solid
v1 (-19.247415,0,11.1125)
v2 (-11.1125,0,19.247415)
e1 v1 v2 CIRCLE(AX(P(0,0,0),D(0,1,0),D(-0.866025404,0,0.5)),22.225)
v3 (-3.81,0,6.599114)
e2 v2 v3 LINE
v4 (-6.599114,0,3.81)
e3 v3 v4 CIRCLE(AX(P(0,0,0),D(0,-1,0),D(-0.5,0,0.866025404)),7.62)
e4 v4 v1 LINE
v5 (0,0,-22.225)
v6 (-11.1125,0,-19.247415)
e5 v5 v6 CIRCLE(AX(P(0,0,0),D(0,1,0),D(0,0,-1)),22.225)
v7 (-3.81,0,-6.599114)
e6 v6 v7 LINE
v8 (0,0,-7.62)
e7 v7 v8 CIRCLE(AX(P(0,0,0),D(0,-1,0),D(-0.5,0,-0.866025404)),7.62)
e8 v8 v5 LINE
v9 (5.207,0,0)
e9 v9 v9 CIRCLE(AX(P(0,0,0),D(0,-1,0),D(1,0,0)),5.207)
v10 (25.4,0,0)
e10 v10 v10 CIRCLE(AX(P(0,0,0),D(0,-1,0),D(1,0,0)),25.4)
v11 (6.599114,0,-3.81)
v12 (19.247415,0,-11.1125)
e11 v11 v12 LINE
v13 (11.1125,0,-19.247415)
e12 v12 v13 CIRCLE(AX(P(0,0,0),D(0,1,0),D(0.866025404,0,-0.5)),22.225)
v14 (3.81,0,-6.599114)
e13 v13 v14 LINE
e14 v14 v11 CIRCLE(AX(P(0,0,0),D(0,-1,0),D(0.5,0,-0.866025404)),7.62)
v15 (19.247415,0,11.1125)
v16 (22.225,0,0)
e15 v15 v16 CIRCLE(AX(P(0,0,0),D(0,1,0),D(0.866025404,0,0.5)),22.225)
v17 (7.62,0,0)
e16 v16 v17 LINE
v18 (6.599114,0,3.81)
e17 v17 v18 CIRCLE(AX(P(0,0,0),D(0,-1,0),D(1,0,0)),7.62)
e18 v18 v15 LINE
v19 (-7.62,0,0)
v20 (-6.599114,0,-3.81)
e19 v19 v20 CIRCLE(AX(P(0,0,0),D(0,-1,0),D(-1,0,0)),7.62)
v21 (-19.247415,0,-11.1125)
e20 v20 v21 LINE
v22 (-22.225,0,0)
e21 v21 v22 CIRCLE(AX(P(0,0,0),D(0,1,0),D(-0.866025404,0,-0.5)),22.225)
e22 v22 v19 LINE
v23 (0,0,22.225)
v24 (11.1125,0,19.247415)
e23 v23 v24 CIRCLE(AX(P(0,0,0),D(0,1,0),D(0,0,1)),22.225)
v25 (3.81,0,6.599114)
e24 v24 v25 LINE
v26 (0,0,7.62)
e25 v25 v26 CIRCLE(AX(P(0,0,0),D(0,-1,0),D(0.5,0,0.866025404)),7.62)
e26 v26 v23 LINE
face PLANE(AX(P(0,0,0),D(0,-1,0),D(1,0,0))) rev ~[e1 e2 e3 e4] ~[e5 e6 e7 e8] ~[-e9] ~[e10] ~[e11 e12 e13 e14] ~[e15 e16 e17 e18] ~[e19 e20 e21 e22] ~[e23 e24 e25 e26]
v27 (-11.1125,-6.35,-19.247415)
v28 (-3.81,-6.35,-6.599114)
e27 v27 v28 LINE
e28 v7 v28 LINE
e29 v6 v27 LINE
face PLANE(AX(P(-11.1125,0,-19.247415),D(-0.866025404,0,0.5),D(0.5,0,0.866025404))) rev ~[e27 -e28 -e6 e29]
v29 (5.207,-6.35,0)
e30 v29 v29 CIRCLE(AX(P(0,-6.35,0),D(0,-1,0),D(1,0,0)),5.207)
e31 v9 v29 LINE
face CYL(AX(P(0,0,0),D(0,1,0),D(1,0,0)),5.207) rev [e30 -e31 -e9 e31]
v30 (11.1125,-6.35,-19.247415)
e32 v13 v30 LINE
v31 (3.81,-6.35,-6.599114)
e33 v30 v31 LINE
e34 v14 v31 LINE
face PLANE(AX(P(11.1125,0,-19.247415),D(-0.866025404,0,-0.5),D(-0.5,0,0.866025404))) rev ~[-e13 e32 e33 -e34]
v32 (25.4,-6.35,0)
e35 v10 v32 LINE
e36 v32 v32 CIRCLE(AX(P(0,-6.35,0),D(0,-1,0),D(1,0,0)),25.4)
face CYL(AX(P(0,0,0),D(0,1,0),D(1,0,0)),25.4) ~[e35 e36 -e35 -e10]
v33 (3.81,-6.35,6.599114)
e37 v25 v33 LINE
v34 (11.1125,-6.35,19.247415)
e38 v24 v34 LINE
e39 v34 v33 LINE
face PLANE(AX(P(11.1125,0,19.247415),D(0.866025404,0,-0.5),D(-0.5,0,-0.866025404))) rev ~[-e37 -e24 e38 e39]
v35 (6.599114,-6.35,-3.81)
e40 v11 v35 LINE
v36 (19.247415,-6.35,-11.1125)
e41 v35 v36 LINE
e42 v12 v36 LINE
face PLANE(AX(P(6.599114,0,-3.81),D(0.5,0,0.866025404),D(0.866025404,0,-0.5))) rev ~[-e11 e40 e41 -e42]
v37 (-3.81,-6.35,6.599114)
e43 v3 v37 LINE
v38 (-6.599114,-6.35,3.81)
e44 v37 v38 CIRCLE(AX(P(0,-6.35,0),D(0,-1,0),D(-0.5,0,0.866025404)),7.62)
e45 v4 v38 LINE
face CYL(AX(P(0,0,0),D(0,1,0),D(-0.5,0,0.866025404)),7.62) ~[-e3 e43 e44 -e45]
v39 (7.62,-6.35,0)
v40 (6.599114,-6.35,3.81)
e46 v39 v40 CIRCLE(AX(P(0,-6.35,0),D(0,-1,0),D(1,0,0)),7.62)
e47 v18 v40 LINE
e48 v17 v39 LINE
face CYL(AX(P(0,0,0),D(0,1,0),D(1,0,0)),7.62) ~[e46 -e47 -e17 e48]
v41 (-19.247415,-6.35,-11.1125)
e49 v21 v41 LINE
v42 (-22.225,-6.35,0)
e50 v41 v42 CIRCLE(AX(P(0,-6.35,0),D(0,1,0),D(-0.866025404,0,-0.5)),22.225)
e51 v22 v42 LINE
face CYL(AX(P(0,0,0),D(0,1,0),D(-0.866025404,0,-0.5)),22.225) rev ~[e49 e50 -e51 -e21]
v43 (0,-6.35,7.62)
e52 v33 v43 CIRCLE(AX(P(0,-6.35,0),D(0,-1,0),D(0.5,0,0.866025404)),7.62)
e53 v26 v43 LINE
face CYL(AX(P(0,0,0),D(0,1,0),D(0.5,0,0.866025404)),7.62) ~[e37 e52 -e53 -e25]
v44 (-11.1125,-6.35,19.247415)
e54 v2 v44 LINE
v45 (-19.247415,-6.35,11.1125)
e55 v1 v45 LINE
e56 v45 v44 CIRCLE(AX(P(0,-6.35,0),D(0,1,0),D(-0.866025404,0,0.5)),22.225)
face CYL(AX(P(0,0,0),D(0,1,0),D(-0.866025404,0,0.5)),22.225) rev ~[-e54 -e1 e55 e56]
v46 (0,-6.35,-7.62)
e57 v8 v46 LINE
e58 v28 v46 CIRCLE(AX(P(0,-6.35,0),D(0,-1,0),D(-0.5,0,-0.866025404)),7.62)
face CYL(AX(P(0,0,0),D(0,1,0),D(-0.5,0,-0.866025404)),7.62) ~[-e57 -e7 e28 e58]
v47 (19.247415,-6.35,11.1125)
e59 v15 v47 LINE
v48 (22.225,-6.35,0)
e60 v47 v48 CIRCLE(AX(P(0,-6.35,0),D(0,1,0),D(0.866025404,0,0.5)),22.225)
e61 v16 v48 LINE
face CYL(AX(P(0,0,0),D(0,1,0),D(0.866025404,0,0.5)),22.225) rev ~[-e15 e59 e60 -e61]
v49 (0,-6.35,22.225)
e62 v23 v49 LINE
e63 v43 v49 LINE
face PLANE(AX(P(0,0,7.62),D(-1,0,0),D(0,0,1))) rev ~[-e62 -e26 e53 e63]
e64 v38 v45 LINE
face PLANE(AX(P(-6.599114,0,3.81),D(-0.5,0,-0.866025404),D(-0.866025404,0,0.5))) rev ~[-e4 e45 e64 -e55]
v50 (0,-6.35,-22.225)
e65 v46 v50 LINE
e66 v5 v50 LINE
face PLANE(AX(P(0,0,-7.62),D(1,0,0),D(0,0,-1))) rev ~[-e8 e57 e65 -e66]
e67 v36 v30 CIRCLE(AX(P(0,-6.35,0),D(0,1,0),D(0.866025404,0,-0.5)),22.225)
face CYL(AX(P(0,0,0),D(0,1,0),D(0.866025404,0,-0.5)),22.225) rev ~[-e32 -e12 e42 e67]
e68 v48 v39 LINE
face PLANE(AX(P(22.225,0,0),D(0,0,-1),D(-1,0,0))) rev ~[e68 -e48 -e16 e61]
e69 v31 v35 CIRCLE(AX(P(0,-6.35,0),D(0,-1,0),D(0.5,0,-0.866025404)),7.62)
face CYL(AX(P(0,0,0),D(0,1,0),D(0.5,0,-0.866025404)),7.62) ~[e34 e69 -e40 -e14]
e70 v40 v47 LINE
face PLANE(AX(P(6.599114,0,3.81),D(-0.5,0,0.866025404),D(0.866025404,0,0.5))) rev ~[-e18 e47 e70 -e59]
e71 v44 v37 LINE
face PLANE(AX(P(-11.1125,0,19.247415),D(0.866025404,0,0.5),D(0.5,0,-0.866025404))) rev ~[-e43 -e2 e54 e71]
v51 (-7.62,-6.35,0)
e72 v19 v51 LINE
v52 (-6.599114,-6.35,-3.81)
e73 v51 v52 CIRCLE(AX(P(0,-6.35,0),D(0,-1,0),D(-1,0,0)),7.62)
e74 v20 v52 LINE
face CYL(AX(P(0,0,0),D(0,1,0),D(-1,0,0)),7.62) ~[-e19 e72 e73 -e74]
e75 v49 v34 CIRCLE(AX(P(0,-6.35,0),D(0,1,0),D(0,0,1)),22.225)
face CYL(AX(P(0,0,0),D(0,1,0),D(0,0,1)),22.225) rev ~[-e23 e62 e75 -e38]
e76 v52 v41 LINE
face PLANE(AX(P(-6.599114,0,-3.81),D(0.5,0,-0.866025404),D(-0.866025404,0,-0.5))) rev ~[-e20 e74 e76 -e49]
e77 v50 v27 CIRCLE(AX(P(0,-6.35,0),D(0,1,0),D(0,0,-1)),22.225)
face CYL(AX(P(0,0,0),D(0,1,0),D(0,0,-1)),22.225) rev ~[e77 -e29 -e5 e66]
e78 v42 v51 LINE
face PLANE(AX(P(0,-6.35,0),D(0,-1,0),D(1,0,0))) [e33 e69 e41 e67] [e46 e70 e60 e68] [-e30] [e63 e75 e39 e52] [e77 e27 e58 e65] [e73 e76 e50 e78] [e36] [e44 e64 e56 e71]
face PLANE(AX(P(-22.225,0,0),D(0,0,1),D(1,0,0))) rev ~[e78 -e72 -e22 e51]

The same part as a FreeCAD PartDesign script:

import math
import FreeCAD as App
import Part
import Sketcher
from FreeCAD import Vector
Q = App.Units.Quantity

doc = App.newDocument("Part")
params = doc.addObject("Spreadsheet::Sheet", "Params")
for row, (alias, value) in enumerate([
    ("sketch1_diameter", "2 in"),
    ("sketch1_radius", "0.3 in"),
    ("sketch1_diameter2", "0.41 in"),
    ("sketch1_radius2", "0.875 in"),
    ("pad1_length", "0.25 in"),
], start=1):
    params.set(f"A{row}", alias)
    params.set(f"B{row}", "=" + value)
    params.setAlias(f"B{row}", alias)

body = doc.addObject("PartDesign::Body", "Body")

# Sketch on XZ plane
sketch1 = body.newObject("Sketcher::SketchObject", "Sketch")
sketch1.AttachmentSupport = (doc.getObject("XZ_Plane"), [""])
sketch1.MapMode = "FlatFace"
sketch1.addGeometry([
    Part.Circle(Vector(0, 0, 0), Vector(0, 0, 1), 25.4),  # 0
    Part.ArcOfCircle(Part.Circle(Vector(0, 0, 0), Vector(0, 0, 1), 22.2), math.radians(60), math.radians(90)),  # 1
    Part.LineSegment(Vector(11.1, 19.2, 0), Vector(3.8, 6.6, 0)),  # 2
    Part.ArcOfCircle(Part.Circle(Vector(0, 0, 0), Vector(0, 0, 1), 7.6), math.radians(60), math.radians(90)),  # 3
    Part.LineSegment(Vector(0, 7.6, 0), Vector(0, 22.2, 0)),  # 4
    Part.ArcOfCircle(Part.Circle(Vector(0, 0, 0), Vector(0, 0, 1), 7.6), math.radians(120), math.radians(150)),  # 5
    Part.LineSegment(Vector(-6.6, 3.8, 0), Vector(-19.2, 11.1, 0)),  # 6
    Part.ArcOfCircle(Part.Circle(Vector(0, 0, 0), Vector(0, 0, 1), 22.2), math.radians(120), math.radians(150)),  # 7
    Part.LineSegment(Vector(-11.1, 19.2, 0), Vector(-3.8, 6.6, 0)),  # 8
    Part.ArcOfCircle(Part.Circle(Vector(0, 0, 0), Vector(0, 0, 1), 7.6), math.radians(180), math.radians(210)),  # 9
    Part.LineSegment(Vector(-6.6, -3.8, 0), Vector(-19.2, -11.1, 0)),  # 10
    Part.ArcOfCircle(Part.Circle(Vector(0, 0, 0), Vector(0, 0, 1), 22.2), math.radians(180), math.radians(210)),  # 11
    Part.LineSegment(Vector(-22.2, 0, 0), Vector(-7.6, 0, 0)),  # 12
    Part.ArcOfCircle(Part.Circle(Vector(0, 0, 0), Vector(0, 0, 1), 7.6), math.radians(-120), math.radians(-90)),  # 13
    Part.LineSegment(Vector(0, -7.6, 0), Vector(0, -22.2, 0)),  # 14
    Part.ArcOfCircle(Part.Circle(Vector(0, 0, 0), Vector(0, 0, 1), 22.2), math.radians(-120), math.radians(-90)),  # 15
    Part.LineSegment(Vector(-11.1, -19.2, 0), Vector(-3.8, -6.6, 0)),  # 16
    Part.ArcOfCircle(Part.Circle(Vector(0, 0, 0), Vector(0, 0, 1), 7.6), math.radians(-60), math.radians(-30)),  # 17
    Part.LineSegment(Vector(6.6, -3.8, 0), Vector(19.2, -11.1, 0)),  # 18
    Part.ArcOfCircle(Part.Circle(Vector(0, 0, 0), Vector(0, 0, 1), 22.2), math.radians(-60), math.radians(-30)),  # 19
    Part.LineSegment(Vector(11.1, -19.2, 0), Vector(3.8, -6.6, 0)),  # 20
    Part.ArcOfCircle(Part.Circle(Vector(0, 0, 0), Vector(0, 0, 1), 7.6), math.radians(0), math.radians(30)),  # 21
    Part.LineSegment(Vector(6.6, 3.8, 0), Vector(19.2, 11.1, 0)),  # 22
    Part.ArcOfCircle(Part.Circle(Vector(0, 0, 0), Vector(0, 0, 1), 22.2), math.radians(0), math.radians(30)),  # 23
    Part.LineSegment(Vector(22.2, 0, 0), Vector(7.6, 0, 0)),  # 24
    Part.Circle(Vector(0, 0, 0), Vector(0, 0, 1), 5.2),  # 25
], False)
sketch1.addConstraint([
    Sketcher.Constraint("Coincident", 1, 1, 2, 1),
    Sketcher.Constraint("Coincident", 2, 2, 3, 1),
    Sketcher.Constraint("Coincident", 3, 2, 4, 1),
    Sketcher.Constraint("Coincident", 4, 2, 1, 2),
    Sketcher.Constraint("Coincident", 5, 2, 6, 1),
    Sketcher.Constraint("Coincident", 6, 2, 7, 2),
    Sketcher.Constraint("Coincident", 7, 1, 8, 1),
    Sketcher.Constraint("Coincident", 8, 2, 5, 1),
    Sketcher.Constraint("Coincident", 9, 2, 10, 1),
    Sketcher.Constraint("Coincident", 10, 2, 11, 2),
    Sketcher.Constraint("Coincident", 11, 1, 12, 1),
    Sketcher.Constraint("Coincident", 12, 2, 9, 1),
    Sketcher.Constraint("Coincident", 13, 2, 14, 1),
    Sketcher.Constraint("Coincident", 14, 2, 15, 2),
    Sketcher.Constraint("Coincident", 15, 1, 16, 1),
    Sketcher.Constraint("Coincident", 16, 2, 13, 1),
    Sketcher.Constraint("Coincident", 17, 2, 18, 1),
    Sketcher.Constraint("Coincident", 18, 2, 19, 2),
    Sketcher.Constraint("Coincident", 19, 1, 20, 1),
    Sketcher.Constraint("Coincident", 20, 2, 17, 1),
    Sketcher.Constraint("Coincident", 21, 2, 22, 1),
    Sketcher.Constraint("Coincident", 22, 2, 23, 2),
    Sketcher.Constraint("Coincident", 23, 1, 24, 1),
    Sketcher.Constraint("Coincident", 24, 2, 21, 1),
    Sketcher.Constraint("Vertical", 4),
    Sketcher.Constraint("Horizontal", 12),
    Sketcher.Constraint("Vertical", 14),
    Sketcher.Constraint("Horizontal", 24),
    Sketcher.Constraint("Coincident", 0, 3, -1, 1),
    Sketcher.Constraint("Coincident", 1, 3, -1, 1),
    Sketcher.Constraint("Coincident", 3, 3, -1, 1),
    Sketcher.Constraint("Coincident", 5, 3, -1, 1),
    Sketcher.Constraint("Coincident", 7, 3, -1, 1),
    Sketcher.Constraint("Coincident", 9, 3, -1, 1),
    Sketcher.Constraint("Coincident", 11, 3, -1, 1),
    Sketcher.Constraint("Coincident", 13, 3, -1, 1),
    Sketcher.Constraint("Coincident", 15, 3, -1, 1),
    Sketcher.Constraint("Coincident", 17, 3, -1, 1),
    Sketcher.Constraint("Coincident", 19, 3, -1, 1),
    Sketcher.Constraint("Coincident", 21, 3, -1, 1),
    Sketcher.Constraint("Coincident", 23, 3, -1, 1),
    Sketcher.Constraint("Coincident", 25, 3, -1, 1),
    Sketcher.Constraint("Equal", 3, 5),
    Sketcher.Constraint("Equal", 1, 7),
    Sketcher.Constraint("Equal", 5, 9),
    Sketcher.Constraint("Equal", 7, 11),
    Sketcher.Constraint("Equal", 9, 13),
    Sketcher.Constraint("Equal", 11, 15),
    Sketcher.Constraint("Equal", 13, 17),
    Sketcher.Constraint("Equal", 15, 19),
    Sketcher.Constraint("Equal", 17, 21),
    Sketcher.Constraint("Equal", 19, 23),
    Sketcher.Constraint("PointOnObject", 3, 2, -2),
    Sketcher.Constraint("PointOnObject", 11, 1, -1),
    Sketcher.Constraint("PointOnObject", 13, 2, -2),
    Sketcher.Constraint("PointOnObject", 23, 1, -1),
    Sketcher.Constraint("Perpendicular", 2, 6),
    Sketcher.Constraint("Perpendicular", 8, 10),
    Sketcher.Constraint("Perpendicular", 6, 16),
    Sketcher.Constraint("Perpendicular", 16, 18),
    Sketcher.Constraint("Perpendicular", 10, 20),
    Sketcher.Constraint("Perpendicular", 20, 22),
    Sketcher.Constraint("Horizontal", 1, 1, 7, 1),
    Sketcher.Constraint("Horizontal", 2, 2, 8, 2),
    Sketcher.Constraint("Horizontal", 9, 2, 17, 2),
    Sketcher.Constraint("Horizontal", 15, 1, 19, 1),
    Sketcher.Constraint("Horizontal", 5, 2, 21, 2),
    Sketcher.Constraint("Vertical", 5, 2, 9, 2),
    Sketcher.Constraint("Vertical", 7, 1, 15, 1),
    Sketcher.Constraint("Diameter", 0, Q("2 in")),
    Sketcher.Constraint("Radius", 3, Q("0.3 in")),
    Sketcher.Constraint("Diameter", 25, Q("0.41 in")),
    Sketcher.Constraint("Angle", 2, Q("-120 deg")),
    Sketcher.Constraint("Radius", 1, Q("0.875 in")),
    Sketcher.Constraint("DistanceY", 9, 2, 5, 2, Q("0.3 in")),
    Sketcher.Constraint("DistanceX", -1, 1, 2, 2, Q("0.15 in")),
])
sketch1.setExpression("Constraints[69]", "Params.sketch1_diameter")
sketch1.setExpression("Constraints[70]", "Params.sketch1_radius")
sketch1.setExpression("Constraints[71]", "Params.sketch1_diameter2")
sketch1.setExpression("Constraints[73]", "Params.sketch1_radius2")
pad1 = body.newObject("PartDesign::Pad", "Pad")
pad1.Profile = sketch1
pad1.setExpression("Length", "Params.pad1_length")

doc.recompute()
